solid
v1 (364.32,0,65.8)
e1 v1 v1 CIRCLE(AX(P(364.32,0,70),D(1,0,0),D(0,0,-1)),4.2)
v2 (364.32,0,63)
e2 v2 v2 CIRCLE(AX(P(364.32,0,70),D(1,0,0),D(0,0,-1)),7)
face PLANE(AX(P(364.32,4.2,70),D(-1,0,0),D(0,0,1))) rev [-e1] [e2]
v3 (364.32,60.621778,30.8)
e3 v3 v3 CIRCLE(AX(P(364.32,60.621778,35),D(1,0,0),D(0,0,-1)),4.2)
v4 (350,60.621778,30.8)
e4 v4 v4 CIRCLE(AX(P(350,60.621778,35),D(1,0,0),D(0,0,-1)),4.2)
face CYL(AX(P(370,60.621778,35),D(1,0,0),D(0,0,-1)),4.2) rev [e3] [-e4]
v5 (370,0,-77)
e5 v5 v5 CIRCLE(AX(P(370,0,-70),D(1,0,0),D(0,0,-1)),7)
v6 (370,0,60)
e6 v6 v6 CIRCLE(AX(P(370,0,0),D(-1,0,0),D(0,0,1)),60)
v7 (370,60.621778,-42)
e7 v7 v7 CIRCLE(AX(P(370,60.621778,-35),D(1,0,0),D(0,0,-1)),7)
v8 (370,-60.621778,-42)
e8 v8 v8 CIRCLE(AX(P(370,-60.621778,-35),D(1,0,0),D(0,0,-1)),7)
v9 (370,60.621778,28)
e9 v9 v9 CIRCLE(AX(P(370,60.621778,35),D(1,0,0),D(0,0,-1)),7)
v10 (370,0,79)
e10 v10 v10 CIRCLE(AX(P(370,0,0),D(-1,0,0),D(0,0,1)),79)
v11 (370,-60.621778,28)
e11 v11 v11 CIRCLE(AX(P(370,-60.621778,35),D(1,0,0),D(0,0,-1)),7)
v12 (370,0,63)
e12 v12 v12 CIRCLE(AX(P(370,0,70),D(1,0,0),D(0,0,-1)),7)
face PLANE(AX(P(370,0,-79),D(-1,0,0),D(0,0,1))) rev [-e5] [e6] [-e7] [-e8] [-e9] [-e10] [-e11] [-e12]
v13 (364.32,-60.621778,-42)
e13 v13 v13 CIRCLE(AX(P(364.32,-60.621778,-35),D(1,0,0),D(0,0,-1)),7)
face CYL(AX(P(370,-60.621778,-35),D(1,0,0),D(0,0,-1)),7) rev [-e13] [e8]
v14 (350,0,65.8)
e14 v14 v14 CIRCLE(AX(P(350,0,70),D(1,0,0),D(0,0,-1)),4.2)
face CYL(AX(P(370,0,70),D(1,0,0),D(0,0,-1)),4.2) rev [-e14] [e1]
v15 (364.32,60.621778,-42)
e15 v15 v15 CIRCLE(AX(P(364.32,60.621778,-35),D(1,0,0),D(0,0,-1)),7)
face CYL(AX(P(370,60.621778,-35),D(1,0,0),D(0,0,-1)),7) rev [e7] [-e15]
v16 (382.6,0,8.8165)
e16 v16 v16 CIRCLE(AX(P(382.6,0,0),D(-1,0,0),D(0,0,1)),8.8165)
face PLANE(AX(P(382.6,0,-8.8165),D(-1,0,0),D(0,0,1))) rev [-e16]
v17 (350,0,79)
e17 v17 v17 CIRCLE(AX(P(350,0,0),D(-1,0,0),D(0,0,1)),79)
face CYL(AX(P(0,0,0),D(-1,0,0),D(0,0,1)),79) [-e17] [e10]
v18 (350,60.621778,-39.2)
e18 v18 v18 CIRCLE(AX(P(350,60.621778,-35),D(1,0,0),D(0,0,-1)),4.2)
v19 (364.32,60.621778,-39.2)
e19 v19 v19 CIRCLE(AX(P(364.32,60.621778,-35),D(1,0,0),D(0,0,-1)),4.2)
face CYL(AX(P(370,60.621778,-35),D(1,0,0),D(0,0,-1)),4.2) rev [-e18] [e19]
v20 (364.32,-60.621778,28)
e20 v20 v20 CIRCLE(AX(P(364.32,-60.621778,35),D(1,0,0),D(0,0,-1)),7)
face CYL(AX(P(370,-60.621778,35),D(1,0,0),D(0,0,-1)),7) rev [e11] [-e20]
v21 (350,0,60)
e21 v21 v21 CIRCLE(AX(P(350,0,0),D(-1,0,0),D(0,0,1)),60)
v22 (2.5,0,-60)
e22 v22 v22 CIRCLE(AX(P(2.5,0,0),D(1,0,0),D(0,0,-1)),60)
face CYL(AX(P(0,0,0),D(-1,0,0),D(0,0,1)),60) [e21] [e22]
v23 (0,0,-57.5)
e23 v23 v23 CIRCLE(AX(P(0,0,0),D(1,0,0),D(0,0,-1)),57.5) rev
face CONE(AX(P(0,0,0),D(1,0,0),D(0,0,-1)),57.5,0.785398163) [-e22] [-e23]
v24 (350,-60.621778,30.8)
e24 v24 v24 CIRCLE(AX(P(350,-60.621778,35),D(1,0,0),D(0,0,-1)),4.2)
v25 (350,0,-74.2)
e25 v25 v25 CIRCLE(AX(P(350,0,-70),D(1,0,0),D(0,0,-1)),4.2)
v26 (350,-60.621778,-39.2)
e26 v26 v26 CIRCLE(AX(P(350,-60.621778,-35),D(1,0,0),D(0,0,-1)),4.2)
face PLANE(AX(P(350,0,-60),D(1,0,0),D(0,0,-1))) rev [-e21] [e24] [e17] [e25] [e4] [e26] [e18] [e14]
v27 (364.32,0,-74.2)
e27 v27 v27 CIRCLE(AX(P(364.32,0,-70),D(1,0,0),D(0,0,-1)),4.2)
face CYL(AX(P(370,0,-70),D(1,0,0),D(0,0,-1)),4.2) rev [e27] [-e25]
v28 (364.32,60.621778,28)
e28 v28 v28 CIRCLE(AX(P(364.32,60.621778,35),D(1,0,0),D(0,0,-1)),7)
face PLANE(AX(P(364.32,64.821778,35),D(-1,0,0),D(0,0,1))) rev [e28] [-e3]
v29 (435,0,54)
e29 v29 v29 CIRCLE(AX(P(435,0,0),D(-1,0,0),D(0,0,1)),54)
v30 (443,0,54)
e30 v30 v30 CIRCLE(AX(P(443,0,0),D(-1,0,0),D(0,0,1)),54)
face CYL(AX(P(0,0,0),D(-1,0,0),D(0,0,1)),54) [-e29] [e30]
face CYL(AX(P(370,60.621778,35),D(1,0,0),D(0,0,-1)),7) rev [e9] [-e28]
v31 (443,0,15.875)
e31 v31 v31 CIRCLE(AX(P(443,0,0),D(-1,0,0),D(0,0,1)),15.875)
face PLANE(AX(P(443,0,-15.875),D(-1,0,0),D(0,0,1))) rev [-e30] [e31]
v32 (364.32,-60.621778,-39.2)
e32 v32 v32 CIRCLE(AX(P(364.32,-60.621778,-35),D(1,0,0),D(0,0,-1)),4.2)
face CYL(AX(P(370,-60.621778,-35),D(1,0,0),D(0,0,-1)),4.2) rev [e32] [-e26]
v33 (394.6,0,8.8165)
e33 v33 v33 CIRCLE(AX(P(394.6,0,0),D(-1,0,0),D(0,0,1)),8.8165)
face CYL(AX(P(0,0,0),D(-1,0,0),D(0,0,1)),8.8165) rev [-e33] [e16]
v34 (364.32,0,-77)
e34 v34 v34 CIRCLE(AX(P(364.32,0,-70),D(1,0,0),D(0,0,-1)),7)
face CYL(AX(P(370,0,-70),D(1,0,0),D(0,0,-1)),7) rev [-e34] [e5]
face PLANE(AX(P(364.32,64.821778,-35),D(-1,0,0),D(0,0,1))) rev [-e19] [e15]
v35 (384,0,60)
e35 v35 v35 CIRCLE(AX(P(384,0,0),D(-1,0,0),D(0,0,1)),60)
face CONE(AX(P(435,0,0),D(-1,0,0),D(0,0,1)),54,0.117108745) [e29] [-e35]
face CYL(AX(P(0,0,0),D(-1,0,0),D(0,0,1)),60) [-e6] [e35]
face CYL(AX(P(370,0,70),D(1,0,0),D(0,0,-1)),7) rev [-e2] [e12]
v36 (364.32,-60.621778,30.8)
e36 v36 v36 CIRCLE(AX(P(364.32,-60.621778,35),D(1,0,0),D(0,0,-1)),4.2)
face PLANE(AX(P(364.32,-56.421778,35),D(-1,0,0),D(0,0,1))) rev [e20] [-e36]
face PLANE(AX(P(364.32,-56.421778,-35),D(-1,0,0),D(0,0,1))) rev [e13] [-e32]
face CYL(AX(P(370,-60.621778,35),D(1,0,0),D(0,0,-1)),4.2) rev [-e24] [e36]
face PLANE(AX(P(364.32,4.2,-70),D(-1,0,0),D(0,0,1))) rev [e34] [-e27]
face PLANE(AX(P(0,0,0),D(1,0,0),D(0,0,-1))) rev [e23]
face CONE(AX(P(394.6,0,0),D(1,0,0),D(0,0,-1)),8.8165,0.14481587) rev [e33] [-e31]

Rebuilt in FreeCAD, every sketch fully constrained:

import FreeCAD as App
import Part
import Sketcher


def edges_at(feature, points):
    """Names of the edges that pass closest to the given points."""
    edges = feature.Shape.Edges
    near = lambda p: min(range(len(edges)), key=lambda i: edges[i].distToShape(Part.Vertex(*p))[0])
    return sorted({f"Edge{near(p) + 1}" for p in points})


def add_polygon(sketch, points):
    """Adds a closed chain of lines whose ends are joined by coincident constraints."""
    first, n = sketch.GeometryCount, len(points)
    for a, b in zip(points, points[1:] + points[:1]):
        sketch.addGeometry(Part.LineSegment(App.Vector(*a, 0), App.Vector(*b, 0)), False)
    for i in range(n):
        sketch.addConstraint(Sketcher.Constraint("Coincident", first + i, 2, first + (i + 1) % n, 1))

doc = App.newDocument("Part")
body = doc.addObject("PartDesign::Body", "Body")

# Sketch on XZ plane
sketch1 = body.newObject("Sketcher::SketchObject", "Sketch")
sketch1.AttachmentSupport = (doc.getObject("XZ_Plane"), [""])
sketch1.MapMode = "FlatFace"
add_polygon(sketch1, [(0, -60), (0, 0), (383, 0), (383, -9), (395, -9), (443, -16), (443, -54), (435, -54), (384, -60), (370, -60), (370, -79), (350, -79), (350, -60)])  # lines 0-12
sketch1.addConstraint(Sketcher.Constraint("Vertical", 0))
sketch1.addConstraint(Sketcher.Constraint("Horizontal", 1))
sketch1.addConstraint(Sketcher.Constraint("Vertical", 2))
sketch1.addConstraint(Sketcher.Constraint("Horizontal", 3))
sketch1.addConstraint(Sketcher.Constraint("Vertical", 5))
sketch1.addConstraint(Sketcher.Constraint("Horizontal", 6))
sketch1.addConstraint(Sketcher.Constraint("Horizontal", 8))
sketch1.addConstraint(Sketcher.Constraint("Vertical", 9))
sketch1.addConstraint(Sketcher.Constraint("Horizontal", 10))
sketch1.addConstraint(Sketcher.Constraint("Vertical", 11))
sketch1.addConstraint(Sketcher.Constraint("Horizontal", 12))
sketch1.addConstraint(Sketcher.Constraint("Coincident", 0, 2, -1, 1))
sketch1.addConstraint(Sketcher.Constraint("Horizontal", 8, 2, 11, 2))
sketch1.addConstraint(Sketcher.Constraint("DistanceX", 3, 1, 3, 2, 12.0))
sketch1.addConstraint(Sketcher.Constraint("DistanceX", 6, 2, 6, 1, 8.0))
sketch1.addConstraint(Sketcher.Constraint("DistanceX", 8, 2, 8, 1, 14.0))
sketch1.addConstraint(Sketcher.Constraint("DistanceX", 10, 2, 10, 1, 20.0))
sketch1.addConstraint(Sketcher.Constraint("DistanceX", 12, 2, 12, 1, 350.0))
sketch1.addConstraint(Sketcher.Constraint("DistanceY", 0, 1, 0, 2, 60.0))
sketch1.addConstraint(Sketcher.Constraint("DistanceY", 9, 2, 9, 1, 19.0))
sketch1.addConstraint(Sketcher.Constraint("DistanceX", 1, 1, 1, 2, 382.6))
sketch1.addConstraint(Sketcher.Constraint("DistanceX", -1, 1, 4, 2, 443.0))
sketch1.addConstraint(Sketcher.Constraint("DistanceY", 5, 2, -1, 1, 54.0))
sketch1.addConstraint(Sketcher.Constraint("DistanceY", 5, 2, 5, 1, 38.125))
sketch1.addConstraint(Sketcher.Constraint("DistanceY", 2, 2, 2, 1, 8.8165))
revolution = body.newObject("PartDesign::Revolution", "Revolution")
revolution.Profile = sketch1
revolution.ReferenceAxis = (sketch1, ["H_Axis"])
revolution.Angle = 360
doc.recompute()

chamfer = body.newObject("PartDesign::Chamfer", "Chamfer")
chamfer.Base = (revolution, edges_at(revolution, [(0, 0, -60)]))
chamfer.Size = 2.5

# Sketch on YZ plane
sketch2 = body.newObject("Sketcher::SketchObject", "Sketch001")
sketch2.AttachmentSupport = (doc.getObject("YZ_Plane"), [""])
sketch2.MapMode = "FlatFace"
sketch2.AttachmentOffset = App.Placement(App.Vector(0, 0, 370), App.Rotation())
sketch2.addGeometry(Part.Circle(App.Vector(0, 70, 0), App.Vector(0, 0, 1), 4.2), False)
sketch2.addGeometry(Part.Circle(App.Vector(60.6, 35, 0), App.Vector(0, 0, 1), 4.2), False)
sketch2.addGeometry(Part.Circle(App.Vector(60.6, -35, 0), App.Vector(0, 0, 1), 4.2), False)
sketch2.addGeometry(Part.Circle(App.Vector(0, -70, 0), App.Vector(0, 0, 1), 4.2), False)
sketch2.addGeometry(Part.Circle(App.Vector(-60.6, -35, 0), App.Vector(0, 0, 1), 4.2), False)
sketch2.addGeometry(Part.Circle(App.Vector(-60.6, 35, 0), App.Vector(0, 0, 1), 4.2), False)
sketch2.addConstraint(Sketcher.Constraint("Equal", 0, 1))
sketch2.addConstraint(Sketcher.Constraint("Equal", 1, 2))
sketch2.addConstraint(Sketcher.Constraint("Equal", 2, 3))
sketch2.addConstraint(Sketcher.Constraint("Equal", 3, 4))
sketch2.addConstraint(Sketcher.Constraint("Equal", 4, 5))
sketch2.addConstraint(Sketcher.Constraint("Symmetric", 0, 3, 3, 3, -1, 1))
sketch2.addConstraint(Sketcher.Constraint("Symmetric", 1, 3, 4, 3, -1, 1))
sketch2.addConstraint(Sketcher.Constraint("Symmetric", 2, 3, 5, 3, -1, 1))
sketch2.addConstraint(Sketcher.Constraint("Symmetric", 2, 3, 4, 3, -2))
sketch2.addConstraint(Sketcher.Constraint("PointOnObject", 0, 3, -2))
sketch2.addConstraint(Sketcher.Constraint("Diameter", 0, 8.4))
sketch2.addConstraint(Sketcher.Constraint("DistanceY", -1, 1, 0, 3, 70.0))
sketch2.addConstraint(Sketcher.Constraint("DistanceY", -1, 1, 1, 3, 35.0))
sketch2.addConstraint(Sketcher.Constraint("DistanceX", -1, 1, 1, 3, 60.621778))
doc.recompute()
hole = body.newObject("PartDesign::Hole", "Hole")
hole.Profile = sketch2
hole.ThreadType = "None"
hole.Diameter = 8.4
hole.DepthType = "ThroughAll"
hole.HoleCutType = "Counterbore"
hole.HoleCutDiameter = 14
hole.HoleCutDepth = 5.68

doc.recompute()
